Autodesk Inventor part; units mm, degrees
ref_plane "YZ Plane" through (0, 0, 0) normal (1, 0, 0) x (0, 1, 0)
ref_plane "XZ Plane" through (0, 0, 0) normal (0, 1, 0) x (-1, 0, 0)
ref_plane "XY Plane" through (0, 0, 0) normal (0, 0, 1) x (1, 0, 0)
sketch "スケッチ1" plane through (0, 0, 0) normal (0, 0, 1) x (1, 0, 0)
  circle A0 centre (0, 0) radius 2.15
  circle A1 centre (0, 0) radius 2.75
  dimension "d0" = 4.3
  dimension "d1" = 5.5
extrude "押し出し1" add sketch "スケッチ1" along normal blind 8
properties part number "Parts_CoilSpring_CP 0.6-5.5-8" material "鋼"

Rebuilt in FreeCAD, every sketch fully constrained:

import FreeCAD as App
import Part
import Sketcher
Q = App.Units.Quantity

doc = App.newDocument("Part")
body = doc.addObject("PartDesign::Body", "Body")

# Sketch on XY plane
sketch1 = doc.addObject("Sketcher::SketchObject", "Sketch")
body.addObject(sketch1)
sketch1.AttachmentSupport = (doc.XY_Plane, [""])
sketch1.MapMode = "FlatFace"
sketch1.addGeometry([
    Part.Circle(App.Vector(0, 0, 0), App.Vector(0, 0, 1), 2.8),
    Part.Circle(App.Vector(0, 0, 0), App.Vector(0, 0, 1), 2.1),
], False)
sketch1.addConstraint([
    Sketcher.Constraint("Coincident", 0, 3, -1, 1),
    Sketcher.Constraint("Coincident", 1, 3, -1, 1),
    Sketcher.Constraint("Diameter", 0, Q("5.5 mm")),
    Sketcher.Constraint("Diameter", 1, Q("4.3 mm")),
])
pad1 = doc.addObject("PartDesign::Pad", "Pad")
body.addObject(pad1)
pad1.Profile = sketch1
pad1.Length = 8

doc.recompute()
